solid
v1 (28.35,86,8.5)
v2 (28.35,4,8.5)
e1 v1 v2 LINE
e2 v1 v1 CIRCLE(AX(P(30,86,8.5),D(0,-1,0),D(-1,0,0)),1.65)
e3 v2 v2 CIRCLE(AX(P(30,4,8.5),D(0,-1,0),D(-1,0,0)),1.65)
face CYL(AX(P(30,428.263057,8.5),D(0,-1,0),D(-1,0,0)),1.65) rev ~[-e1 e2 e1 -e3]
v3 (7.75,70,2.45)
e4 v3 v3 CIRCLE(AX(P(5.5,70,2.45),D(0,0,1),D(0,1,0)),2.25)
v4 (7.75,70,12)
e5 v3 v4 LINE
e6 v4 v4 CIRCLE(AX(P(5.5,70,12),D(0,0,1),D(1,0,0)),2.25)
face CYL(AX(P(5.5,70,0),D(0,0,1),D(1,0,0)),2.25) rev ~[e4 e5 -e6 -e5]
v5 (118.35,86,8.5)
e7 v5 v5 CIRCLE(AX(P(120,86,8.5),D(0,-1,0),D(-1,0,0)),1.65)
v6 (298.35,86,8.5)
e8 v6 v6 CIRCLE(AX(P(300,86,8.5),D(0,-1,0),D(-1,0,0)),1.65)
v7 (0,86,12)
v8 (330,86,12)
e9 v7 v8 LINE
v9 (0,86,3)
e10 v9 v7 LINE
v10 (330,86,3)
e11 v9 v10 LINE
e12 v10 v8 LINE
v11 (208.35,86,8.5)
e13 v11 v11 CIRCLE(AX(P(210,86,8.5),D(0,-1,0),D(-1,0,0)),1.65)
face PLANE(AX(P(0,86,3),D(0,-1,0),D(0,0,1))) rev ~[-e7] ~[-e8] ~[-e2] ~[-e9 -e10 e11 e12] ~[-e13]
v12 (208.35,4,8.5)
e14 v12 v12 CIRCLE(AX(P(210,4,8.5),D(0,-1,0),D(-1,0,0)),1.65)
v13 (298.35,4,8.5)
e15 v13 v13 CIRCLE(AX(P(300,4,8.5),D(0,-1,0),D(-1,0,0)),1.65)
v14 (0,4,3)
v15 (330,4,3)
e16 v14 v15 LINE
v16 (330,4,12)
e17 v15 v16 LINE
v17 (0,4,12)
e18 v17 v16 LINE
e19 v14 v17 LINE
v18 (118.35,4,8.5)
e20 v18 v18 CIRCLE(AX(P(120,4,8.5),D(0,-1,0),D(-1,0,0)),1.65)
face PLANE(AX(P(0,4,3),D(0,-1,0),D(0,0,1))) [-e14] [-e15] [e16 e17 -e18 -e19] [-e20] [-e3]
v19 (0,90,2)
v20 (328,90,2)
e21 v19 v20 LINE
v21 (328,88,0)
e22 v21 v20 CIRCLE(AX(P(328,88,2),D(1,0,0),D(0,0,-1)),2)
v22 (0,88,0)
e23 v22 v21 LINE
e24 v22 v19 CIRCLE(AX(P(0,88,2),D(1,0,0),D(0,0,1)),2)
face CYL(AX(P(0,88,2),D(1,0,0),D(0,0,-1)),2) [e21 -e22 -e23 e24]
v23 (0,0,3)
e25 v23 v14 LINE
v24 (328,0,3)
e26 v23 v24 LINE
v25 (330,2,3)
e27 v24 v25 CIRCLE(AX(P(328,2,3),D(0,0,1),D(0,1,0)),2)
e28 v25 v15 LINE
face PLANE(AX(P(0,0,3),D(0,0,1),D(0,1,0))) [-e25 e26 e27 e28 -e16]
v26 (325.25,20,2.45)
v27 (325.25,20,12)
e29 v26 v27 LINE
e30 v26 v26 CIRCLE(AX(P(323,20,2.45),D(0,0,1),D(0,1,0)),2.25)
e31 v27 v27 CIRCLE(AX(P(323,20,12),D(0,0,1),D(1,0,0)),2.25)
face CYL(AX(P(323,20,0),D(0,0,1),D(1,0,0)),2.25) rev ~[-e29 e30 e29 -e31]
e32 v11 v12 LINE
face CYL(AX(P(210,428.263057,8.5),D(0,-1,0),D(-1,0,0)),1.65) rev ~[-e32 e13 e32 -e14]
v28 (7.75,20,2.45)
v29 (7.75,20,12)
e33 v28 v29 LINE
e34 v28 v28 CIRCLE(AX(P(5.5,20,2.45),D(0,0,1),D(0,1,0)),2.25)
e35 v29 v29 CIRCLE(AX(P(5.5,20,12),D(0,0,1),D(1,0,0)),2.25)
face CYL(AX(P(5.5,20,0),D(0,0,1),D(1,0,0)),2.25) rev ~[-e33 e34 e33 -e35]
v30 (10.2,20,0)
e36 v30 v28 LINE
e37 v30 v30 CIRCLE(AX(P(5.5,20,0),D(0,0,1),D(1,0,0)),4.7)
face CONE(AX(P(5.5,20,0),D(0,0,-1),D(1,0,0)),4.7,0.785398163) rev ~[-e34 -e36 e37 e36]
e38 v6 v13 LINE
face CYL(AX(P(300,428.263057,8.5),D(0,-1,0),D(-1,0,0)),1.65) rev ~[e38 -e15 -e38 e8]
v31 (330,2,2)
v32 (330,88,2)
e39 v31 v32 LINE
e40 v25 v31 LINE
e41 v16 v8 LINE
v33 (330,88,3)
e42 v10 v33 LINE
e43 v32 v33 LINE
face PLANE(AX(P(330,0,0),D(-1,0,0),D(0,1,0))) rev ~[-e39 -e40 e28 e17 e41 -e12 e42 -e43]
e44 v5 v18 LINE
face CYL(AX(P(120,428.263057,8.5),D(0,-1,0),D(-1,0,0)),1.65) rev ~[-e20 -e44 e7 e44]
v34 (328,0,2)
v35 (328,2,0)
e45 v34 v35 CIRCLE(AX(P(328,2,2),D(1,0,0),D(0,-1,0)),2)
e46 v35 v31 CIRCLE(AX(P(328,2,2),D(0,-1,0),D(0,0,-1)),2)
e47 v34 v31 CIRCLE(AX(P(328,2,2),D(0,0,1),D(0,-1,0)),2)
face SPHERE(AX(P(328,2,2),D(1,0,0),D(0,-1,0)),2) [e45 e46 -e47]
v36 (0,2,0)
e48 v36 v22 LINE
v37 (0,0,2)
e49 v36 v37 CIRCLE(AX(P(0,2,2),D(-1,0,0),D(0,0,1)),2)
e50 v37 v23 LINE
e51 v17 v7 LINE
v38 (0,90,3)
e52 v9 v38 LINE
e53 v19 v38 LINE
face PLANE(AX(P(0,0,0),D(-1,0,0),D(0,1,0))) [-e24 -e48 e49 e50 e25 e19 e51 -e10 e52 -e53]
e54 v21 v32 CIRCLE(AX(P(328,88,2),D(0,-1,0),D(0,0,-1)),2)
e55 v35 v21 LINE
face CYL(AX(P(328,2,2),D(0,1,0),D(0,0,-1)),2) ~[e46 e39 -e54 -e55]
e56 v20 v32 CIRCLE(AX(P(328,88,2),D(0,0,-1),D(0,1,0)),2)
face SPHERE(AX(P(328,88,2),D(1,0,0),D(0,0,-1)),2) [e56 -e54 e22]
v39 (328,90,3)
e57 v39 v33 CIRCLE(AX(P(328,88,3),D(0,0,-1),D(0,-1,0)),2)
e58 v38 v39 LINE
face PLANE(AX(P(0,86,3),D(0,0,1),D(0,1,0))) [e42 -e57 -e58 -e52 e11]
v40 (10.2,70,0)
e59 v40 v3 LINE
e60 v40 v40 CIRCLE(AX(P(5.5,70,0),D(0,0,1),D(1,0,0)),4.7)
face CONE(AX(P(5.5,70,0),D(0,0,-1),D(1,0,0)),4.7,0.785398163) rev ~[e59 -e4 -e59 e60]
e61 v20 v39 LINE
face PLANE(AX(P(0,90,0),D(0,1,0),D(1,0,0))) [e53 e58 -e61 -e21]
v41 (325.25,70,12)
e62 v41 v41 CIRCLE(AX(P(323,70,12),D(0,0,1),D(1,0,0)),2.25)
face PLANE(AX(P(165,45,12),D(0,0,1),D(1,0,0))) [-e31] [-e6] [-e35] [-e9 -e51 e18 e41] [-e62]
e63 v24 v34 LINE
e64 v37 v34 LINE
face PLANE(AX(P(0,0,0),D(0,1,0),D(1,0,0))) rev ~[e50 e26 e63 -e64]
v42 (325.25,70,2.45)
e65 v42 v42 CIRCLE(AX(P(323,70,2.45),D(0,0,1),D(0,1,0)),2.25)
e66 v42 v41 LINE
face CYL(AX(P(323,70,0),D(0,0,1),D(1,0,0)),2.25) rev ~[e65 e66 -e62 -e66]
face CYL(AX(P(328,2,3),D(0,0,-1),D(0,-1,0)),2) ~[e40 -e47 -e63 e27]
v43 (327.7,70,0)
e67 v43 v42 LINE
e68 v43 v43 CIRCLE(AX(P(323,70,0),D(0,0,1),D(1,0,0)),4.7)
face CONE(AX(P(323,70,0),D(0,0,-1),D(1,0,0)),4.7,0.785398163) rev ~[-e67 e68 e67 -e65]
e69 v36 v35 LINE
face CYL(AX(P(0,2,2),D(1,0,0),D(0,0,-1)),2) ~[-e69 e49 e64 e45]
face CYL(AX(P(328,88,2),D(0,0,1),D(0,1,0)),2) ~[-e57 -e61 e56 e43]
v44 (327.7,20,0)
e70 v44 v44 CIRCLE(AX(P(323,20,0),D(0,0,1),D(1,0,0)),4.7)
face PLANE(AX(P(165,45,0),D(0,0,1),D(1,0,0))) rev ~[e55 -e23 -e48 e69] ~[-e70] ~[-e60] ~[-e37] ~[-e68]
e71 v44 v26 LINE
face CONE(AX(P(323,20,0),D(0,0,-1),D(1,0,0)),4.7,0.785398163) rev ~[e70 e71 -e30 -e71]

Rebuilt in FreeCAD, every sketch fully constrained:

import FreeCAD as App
import Part
import Sketcher


def edges_at(feature, points):
    """Names of the edges that pass closest to the given points."""
    edges = feature.Shape.Edges
    near = lambda p: min(range(len(edges)), key=lambda i: edges[i].distToShape(Part.Vertex(*p))[0])
    return sorted({f"Edge{near(p) + 1}" for p in points})


def add_polygon(sketch, points):
    """Adds a closed chain of lines whose ends are joined by coincident constraints."""
    first, n = sketch.GeometryCount, len(points)
    for a, b in zip(points, points[1:] + points[:1]):
        sketch.addGeometry(Part.LineSegment(App.Vector(*a, 0), App.Vector(*b, 0)), False)
    for i in range(n):
        sketch.addConstraint(Sketcher.Constraint("Coincident", first + i, 2, first + (i + 1) % n, 1))

doc = App.newDocument("Part")
body = doc.addObject("PartDesign::Body", "Body")

sketch1 = body.newObject("Sketcher::SketchObject", "Sketch")
sketch1.AttachmentSupport = (doc.getObject("XY_Plane"), [""])
sketch1.MapMode = "FlatFace"
add_polygon(sketch1, [(0, 90), (0, 0), (330, 0), (330, 90)])
sketch1.addConstraint([
    Sketcher.Constraint("Vertical", 0),
    Sketcher.Constraint("Horizontal", 1),
    Sketcher.Constraint("Vertical", 2),
    Sketcher.Constraint("Horizontal", 3),
    Sketcher.Constraint("Coincident", 0, 2, -1, 1),
    Sketcher.Constraint("DistanceX", 1, 1, 1, 2, 330.0),
    Sketcher.Constraint("DistanceY", 0, 2, 0, 1, 90.0),
])
pad1 = body.newObject("PartDesign::Pad", "Pad")
pad1.Profile = sketch1
pad1.Length = 12

sketch2 = body.newObject("Sketcher::SketchObject", "Sketch001")
sketch2.AttachmentSupport = (doc.getObject("YZ_Plane"), [""])
sketch2.MapMode = "FlatFace"
add_polygon(sketch2, [(90, 3), (86, 3), (86, 12), (90, 12)])
add_polygon(sketch2, [(4, 3), (0, 3), (0, 12), (4, 12)])
sketch2.addConstraint([
    Sketcher.Constraint("Horizontal", 0),
    Sketcher.Constraint("Vertical", 1),
    Sketcher.Constraint("Horizontal", 2),
    Sketcher.Constraint("Vertical", 3),
    Sketcher.Constraint("Horizontal", 4),
    Sketcher.Constraint("Vertical", 5),
    Sketcher.Constraint("Horizontal", 6),
    Sketcher.Constraint("Vertical", 7),
    Sketcher.Constraint("PointOnObject", 4, 2, -2),
    Sketcher.Constraint("Horizontal", 3, 2, 4, 2),
    Sketcher.Constraint("Horizontal", 2, 2, 5, 2),
    Sketcher.Constraint("Equal", 2, 4),
    Sketcher.Constraint("DistanceX", 0, 2, 0, 1, 4.0),
    Sketcher.Constraint("DistanceY", 1, 1, 1, 2, 9.0),
    Sketcher.Constraint("DistanceX", -1, 1, 0, 2, 86.0),
    Sketcher.Constraint("DistanceY", -1, 1, 0, 2, 3.0),
])
pocket1 = body.newObject("PartDesign::Pocket", "Pocket")
pocket1.Profile = sketch2
pocket1.Type = "ThroughAll"
pocket1.Reversed = True
doc.recompute()

fillet = body.newObject("PartDesign::Fillet", "Fillet")
fillet.Base = (pocket1, edges_at(pocket1, [(165, 90, 0), (165, 0, 0)]))
fillet.Radius = 2
doc.recompute()

fillet2 = body.newObject("PartDesign::Fillet", "Fillet001")
fillet2.Base = (fillet, edges_at(fillet, [
    (330, 90, 2.5),
    (330, 0, 2.5),
    (330, 45, 0),
    (330, 89.414, 0.586),
    (330, 0.586, 0.586),
]))
fillet2.Radius = 2

sketch3 = body.newObject("Sketcher::SketchObject", "Sketch002")
sketch3.AttachmentSupport = (doc.getObject("XZ_Plane"), [""])
sketch3.MapMode = "FlatFace"
sketch3.AttachmentOffset = App.Placement(App.Vector(0, 0, -86), App.Rotation())
sketch3.addGeometry([
    Part.Circle(App.Vector(30, 8.5, 0), App.Vector(0, 0, 1), 1.65),
    Part.Circle(App.Vector(120, 8.5, 0), App.Vector(0, 0, 1), 1.65),
    Part.Circle(App.Vector(210, 8.5, 0), App.Vector(0, 0, 1), 1.65),
    Part.Circle(App.Vector(300, 8.5, 0), App.Vector(0, 0, 1), 1.65),
], False)
sketch3.addConstraint([
    Sketcher.Constraint("Equal", 0, 1),
    Sketcher.Constraint("Equal", 1, 2),
    Sketcher.Constraint("Equal", 2, 3),
    Sketcher.Constraint("Horizontal", 0, 3, 1, 3),
    Sketcher.Constraint("Horizontal", 1, 3, 2, 3),
    Sketcher.Constraint("Horizontal", 2, 3, 3, 3),
    Sketcher.Constraint("Diameter", 0, 3.3),
    Sketcher.Constraint("DistanceX", -1, 1, 0, 3, 30.0),
    Sketcher.Constraint("DistanceX", -1, 1, 1, 3, 120.0),
    Sketcher.Constraint("DistanceX", -1, 1, 2, 3, 210.0),
    Sketcher.Constraint("DistanceX", -1, 1, 3, 3, 300.0),
    Sketcher.Constraint("DistanceY", -1, 1, 0, 3, 8.5),
])
doc.recompute()
hole = body.newObject("PartDesign::Hole", "Hole")
hole.Profile = sketch3
hole.ThreadType = "None"
hole.Diameter = 3.3
hole.DepthType = "ThroughAll"
hole.Reversed = True

sketch4 = body.newObject("Sketcher::SketchObject", "Sketch003")
sketch4.AttachmentSupport = (doc.getObject("XY_Plane"), [""])
sketch4.MapMode = "FlatFace"
sketch4.addGeometry([
    Part.Circle(App.Vector(323, 20, 0), App.Vector(0, 0, 1), 2.25),
    Part.Circle(App.Vector(323, 70, 0), App.Vector(0, 0, 1), 2.25),
    Part.Circle(App.Vector(5.5, 20, 0), App.Vector(0, 0, 1), 2.25),
    Part.Circle(App.Vector(5.5, 70, 0), App.Vector(0, 0, 1), 2.25),
], False)
sketch4.addConstraint([
    Sketcher.Constraint("Equal", 0, 1),
    Sketcher.Constraint("Equal", 1, 2),
    Sketcher.Constraint("Equal", 2, 3),
    Sketcher.Constraint("Horizontal", 0, 3, 2, 3),
    Sketcher.Constraint("Horizontal", 1, 3, 3, 3),
    Sketcher.Constraint("Vertical", 0, 3, 1, 3),
    Sketcher.Constraint("Vertical", 2, 3, 3, 3),
    Sketcher.Constraint("Diameter", 0, 4.5),
    Sketcher.Constraint("DistanceX", -1, 1, 0, 3, 323.0),
    Sketcher.Constraint("DistanceY", -1, 1, 0, 3, 20.0),
    Sketcher.Constraint("DistanceY", -1, 1, 1, 3, 70.0),
    Sketcher.Constraint("DistanceX", -1, 1, 2, 3, 5.5),
])
doc.recompute()
hole2 = body.newObject("PartDesign::Hole", "Hole001")
hole2.Profile = sketch4
hole2.ThreadType = "None"
hole2.Diameter = 4.5
hole2.DepthType = "ThroughAll"
hole2.HoleCutType = "Countersink"
hole2.HoleCutDiameter = 9.4
hole2.HoleCutCountersinkAngle = 90
hole2.Reversed = True

doc.recompute()
